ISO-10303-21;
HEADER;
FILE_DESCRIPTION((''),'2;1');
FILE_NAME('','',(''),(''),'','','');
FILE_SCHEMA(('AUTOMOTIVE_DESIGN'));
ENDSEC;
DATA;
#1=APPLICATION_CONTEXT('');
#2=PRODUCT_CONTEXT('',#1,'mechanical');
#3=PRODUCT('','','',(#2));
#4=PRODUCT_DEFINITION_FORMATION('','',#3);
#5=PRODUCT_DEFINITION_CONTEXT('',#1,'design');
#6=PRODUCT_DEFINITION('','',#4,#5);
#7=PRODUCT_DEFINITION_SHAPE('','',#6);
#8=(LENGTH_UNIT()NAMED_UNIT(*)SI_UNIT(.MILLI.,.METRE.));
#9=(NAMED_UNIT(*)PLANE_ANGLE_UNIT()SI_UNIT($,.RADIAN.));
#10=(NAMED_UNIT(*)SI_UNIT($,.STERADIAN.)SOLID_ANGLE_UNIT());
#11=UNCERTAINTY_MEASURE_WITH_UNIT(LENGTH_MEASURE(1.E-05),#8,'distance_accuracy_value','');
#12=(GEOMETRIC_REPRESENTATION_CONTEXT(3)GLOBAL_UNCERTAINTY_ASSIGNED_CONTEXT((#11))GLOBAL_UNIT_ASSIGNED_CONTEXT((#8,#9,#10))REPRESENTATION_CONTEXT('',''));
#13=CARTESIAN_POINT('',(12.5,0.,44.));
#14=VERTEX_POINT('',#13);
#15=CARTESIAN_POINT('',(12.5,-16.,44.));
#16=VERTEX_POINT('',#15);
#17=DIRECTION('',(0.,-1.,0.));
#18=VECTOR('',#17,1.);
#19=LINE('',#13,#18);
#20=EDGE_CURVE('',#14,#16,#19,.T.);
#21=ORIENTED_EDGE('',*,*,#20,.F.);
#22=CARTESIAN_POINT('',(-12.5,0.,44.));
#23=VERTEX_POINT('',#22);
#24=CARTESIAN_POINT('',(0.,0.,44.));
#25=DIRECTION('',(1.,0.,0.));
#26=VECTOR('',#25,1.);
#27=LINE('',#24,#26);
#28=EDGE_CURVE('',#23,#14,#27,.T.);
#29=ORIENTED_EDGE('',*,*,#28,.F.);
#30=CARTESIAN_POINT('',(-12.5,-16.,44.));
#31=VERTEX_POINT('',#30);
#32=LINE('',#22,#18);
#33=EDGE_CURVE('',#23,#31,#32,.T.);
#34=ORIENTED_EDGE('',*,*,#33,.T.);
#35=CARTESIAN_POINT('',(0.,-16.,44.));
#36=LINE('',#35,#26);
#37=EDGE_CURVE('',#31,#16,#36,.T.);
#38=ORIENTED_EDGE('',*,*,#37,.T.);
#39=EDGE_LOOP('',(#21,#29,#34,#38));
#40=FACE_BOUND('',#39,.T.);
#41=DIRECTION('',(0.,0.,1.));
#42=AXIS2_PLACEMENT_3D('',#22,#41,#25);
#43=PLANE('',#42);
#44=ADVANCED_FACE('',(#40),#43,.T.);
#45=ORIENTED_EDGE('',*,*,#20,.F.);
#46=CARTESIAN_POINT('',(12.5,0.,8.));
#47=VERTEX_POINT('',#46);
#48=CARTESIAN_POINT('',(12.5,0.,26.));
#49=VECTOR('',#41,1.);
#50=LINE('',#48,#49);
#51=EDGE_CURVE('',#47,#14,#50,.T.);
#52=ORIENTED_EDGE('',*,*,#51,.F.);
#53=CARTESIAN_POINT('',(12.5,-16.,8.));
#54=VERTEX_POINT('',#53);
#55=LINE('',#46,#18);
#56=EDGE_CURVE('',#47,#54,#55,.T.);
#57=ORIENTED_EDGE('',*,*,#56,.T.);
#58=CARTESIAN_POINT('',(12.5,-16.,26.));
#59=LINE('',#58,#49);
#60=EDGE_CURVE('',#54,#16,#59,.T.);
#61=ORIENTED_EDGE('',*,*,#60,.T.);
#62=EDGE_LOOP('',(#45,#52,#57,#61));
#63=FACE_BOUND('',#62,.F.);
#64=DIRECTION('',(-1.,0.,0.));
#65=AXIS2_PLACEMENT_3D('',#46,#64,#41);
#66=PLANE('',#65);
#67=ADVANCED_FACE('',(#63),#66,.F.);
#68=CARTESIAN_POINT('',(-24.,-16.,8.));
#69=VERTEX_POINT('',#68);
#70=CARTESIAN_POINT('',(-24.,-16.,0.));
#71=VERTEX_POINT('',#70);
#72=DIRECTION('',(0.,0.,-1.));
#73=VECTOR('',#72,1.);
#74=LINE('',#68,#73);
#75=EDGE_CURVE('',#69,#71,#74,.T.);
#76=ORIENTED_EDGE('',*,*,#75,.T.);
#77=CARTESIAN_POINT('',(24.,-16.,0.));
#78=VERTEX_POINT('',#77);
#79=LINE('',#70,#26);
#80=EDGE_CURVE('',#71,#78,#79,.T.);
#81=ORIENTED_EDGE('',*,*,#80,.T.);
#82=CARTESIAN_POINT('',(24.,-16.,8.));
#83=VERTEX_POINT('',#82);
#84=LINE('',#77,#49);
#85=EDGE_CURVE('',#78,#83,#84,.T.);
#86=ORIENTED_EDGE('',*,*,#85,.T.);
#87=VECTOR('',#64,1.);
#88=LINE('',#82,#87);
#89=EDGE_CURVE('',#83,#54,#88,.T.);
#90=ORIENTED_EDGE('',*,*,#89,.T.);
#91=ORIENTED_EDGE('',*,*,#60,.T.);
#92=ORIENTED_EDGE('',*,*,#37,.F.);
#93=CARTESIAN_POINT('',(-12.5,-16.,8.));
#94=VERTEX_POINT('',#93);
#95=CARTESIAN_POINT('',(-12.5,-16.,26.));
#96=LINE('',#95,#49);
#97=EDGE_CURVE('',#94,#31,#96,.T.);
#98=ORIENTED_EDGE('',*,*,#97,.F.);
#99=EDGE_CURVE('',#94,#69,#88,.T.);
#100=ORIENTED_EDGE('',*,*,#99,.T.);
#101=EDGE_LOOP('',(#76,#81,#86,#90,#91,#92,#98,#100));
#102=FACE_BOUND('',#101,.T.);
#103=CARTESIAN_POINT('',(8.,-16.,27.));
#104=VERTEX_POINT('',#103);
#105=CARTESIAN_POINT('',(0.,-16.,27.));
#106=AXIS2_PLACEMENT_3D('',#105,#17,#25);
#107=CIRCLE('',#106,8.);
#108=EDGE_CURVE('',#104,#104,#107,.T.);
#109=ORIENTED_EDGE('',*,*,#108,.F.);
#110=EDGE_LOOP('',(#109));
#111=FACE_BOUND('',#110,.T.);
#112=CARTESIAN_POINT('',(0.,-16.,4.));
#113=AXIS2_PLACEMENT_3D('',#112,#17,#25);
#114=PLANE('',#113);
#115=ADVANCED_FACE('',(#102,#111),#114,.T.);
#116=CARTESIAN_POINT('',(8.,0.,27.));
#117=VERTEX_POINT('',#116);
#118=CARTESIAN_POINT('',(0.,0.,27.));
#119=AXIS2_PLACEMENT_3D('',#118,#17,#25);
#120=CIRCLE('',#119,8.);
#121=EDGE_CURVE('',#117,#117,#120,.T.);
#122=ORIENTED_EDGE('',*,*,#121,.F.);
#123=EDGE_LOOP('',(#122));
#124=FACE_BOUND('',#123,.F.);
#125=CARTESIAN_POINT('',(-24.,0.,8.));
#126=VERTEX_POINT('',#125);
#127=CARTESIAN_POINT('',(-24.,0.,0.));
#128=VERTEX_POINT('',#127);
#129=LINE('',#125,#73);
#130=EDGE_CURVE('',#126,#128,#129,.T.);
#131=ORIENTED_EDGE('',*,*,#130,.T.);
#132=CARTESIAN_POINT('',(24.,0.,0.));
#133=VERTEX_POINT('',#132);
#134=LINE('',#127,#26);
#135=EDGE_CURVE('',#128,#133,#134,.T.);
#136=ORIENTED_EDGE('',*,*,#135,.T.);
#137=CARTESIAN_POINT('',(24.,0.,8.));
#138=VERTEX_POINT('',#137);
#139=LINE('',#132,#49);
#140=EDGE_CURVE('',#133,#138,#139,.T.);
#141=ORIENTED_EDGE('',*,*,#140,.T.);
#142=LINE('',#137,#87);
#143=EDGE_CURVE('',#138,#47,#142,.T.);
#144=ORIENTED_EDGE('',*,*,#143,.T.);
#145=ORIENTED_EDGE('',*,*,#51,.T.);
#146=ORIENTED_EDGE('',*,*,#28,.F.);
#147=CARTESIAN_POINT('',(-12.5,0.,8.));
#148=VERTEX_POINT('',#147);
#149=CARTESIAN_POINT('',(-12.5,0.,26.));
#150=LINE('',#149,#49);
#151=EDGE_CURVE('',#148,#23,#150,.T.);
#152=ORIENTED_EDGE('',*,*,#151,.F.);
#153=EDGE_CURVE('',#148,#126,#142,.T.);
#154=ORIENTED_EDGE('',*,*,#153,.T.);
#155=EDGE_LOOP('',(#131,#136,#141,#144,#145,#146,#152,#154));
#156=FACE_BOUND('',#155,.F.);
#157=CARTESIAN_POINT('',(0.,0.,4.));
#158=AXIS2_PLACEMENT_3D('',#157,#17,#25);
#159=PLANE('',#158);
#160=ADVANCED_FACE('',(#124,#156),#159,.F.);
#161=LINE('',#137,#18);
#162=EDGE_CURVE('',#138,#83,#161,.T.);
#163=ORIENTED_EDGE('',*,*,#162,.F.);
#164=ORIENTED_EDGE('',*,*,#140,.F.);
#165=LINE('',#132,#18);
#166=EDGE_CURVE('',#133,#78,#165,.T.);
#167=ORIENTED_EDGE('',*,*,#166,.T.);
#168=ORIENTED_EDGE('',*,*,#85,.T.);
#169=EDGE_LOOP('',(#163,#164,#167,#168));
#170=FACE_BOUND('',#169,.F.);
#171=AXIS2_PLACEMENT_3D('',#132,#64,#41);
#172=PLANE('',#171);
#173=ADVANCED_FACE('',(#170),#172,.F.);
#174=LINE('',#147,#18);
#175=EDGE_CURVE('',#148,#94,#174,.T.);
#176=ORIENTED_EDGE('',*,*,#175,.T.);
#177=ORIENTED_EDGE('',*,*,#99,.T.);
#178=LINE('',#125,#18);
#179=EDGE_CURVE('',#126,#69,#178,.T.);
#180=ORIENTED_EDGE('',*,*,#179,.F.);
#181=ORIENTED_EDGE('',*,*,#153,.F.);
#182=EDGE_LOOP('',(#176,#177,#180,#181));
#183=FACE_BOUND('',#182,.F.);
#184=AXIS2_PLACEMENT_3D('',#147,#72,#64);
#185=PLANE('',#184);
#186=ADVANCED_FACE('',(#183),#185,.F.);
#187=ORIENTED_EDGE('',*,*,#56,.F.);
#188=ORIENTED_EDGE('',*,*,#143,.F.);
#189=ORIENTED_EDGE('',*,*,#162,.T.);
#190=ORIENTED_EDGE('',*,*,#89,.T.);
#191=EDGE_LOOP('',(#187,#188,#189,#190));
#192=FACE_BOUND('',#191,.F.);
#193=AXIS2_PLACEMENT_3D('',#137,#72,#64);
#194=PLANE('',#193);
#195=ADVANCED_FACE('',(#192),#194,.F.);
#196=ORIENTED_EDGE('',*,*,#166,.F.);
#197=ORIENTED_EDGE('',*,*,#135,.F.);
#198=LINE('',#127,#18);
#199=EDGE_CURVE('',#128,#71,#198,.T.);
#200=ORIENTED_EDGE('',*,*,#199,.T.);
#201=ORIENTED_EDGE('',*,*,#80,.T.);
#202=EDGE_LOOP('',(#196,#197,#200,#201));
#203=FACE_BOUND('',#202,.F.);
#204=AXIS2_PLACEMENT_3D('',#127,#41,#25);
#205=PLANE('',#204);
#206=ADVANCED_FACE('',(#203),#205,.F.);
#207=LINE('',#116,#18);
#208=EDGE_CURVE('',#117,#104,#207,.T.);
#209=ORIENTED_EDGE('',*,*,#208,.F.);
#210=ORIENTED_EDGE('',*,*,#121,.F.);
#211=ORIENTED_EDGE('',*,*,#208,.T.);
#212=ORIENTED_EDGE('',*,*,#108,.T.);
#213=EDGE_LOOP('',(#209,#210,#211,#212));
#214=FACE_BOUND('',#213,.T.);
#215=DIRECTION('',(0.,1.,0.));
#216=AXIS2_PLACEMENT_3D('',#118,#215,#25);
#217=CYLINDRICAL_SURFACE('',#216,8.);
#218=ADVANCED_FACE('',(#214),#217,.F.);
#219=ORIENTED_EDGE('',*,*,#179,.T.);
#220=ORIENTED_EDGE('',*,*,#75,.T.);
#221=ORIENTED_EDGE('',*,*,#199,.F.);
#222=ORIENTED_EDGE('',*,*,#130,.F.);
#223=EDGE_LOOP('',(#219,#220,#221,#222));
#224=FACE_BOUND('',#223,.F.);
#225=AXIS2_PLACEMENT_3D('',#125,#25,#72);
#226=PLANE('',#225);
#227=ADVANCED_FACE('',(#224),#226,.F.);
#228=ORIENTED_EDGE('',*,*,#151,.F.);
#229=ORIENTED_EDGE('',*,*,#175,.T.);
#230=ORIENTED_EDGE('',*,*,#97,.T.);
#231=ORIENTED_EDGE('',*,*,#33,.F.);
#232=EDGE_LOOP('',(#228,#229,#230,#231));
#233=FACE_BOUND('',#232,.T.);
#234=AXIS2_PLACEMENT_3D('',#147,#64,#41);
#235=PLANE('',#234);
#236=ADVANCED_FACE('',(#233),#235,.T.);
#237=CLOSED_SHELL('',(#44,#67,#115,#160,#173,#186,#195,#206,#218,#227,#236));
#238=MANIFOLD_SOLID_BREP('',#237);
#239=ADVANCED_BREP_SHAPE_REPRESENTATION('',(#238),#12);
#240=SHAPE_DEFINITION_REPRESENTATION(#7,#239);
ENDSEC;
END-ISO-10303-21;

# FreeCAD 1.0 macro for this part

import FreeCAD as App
import Part
import Sketcher

V = App.Vector
Q = App.Units.Quantity


def add_polygon(sketch, points):
    """Adds a closed chain of lines whose ends are joined by coincident constraints."""
    first, n = sketch.GeometryCount, len(points)
    for a, b in zip(points, points[1:] + points[:1]):
        sketch.addGeometry(Part.LineSegment(App.Vector(*a, 0), App.Vector(*b, 0)), False)
    for i in range(n):
        sketch.addConstraint(Sketcher.Constraint("Coincident", first + i, 2, first + (i + 1) % n, 1))

doc = App.newDocument("Part")
body = doc.addObject("PartDesign::Body", "Body")

# Sketch on XZ plane
sketch1 = body.newObject("Sketcher::SketchObject", "Sketch")
sketch1.AttachmentSupport = (doc.getObject("XZ_Plane"), [""])
sketch1.MapMode = "FlatFace"
add_polygon(sketch1, [(-24, 8), (-24, 0), (24, 0), (24, 8), (12, 8), (12, 44), (-12, 44), (-12, 8)])  # lines 0-7
sketch1.addGeometry(Part.Circle(V(0, 27, 0), V(0, 0, 1), 8), False)  # 8
sketch1.addConstraint(Sketcher.Constraint("Vertical", 0))
sketch1.addConstraint(Sketcher.Constraint("Horizontal", 1))
sketch1.addConstraint(Sketcher.Constraint("Vertical", 2))
sketch1.addConstraint(Sketcher.Constraint("Horizontal", 3))
sketch1.addConstraint(Sketcher.Constraint("Vertical", 4))
sketch1.addConstraint(Sketcher.Constraint("Horizontal", 5))
sketch1.addConstraint(Sketcher.Constraint("Vertical", 6))
sketch1.addConstraint(Sketcher.Constraint("Horizontal", 7))
sketch1.addConstraint(Sketcher.Constraint("Symmetric", 0, 2, 1, 2, -1, 1))
sketch1.addConstraint(Sketcher.Constraint("Symmetric", 3, 2, 6, 2, -2))
sketch1.addConstraint(Sketcher.Constraint("PointOnObject", 8, 3, -2))
sketch1.addConstraint(Sketcher.Constraint("Diameter", 8, Q("16 mm")))
sketch1.addConstraint(Sketcher.Constraint("DistanceX", 1, 1, 1, 2, Q("48 mm")))
sketch1.addConstraint(Sketcher.Constraint("DistanceX", 5, 2, 5, 1, Q("25 mm")))
sketch1.addConstraint(Sketcher.Constraint("DistanceY", 0, 2, 0, 1, Q("8 mm")))
sketch1.addConstraint(Sketcher.Constraint("DistanceY", 4, 1, 4, 2, Q("36 mm")))
sketch1.addConstraint(Sketcher.Constraint("DistanceY", -1, 1, 8, 3, Q("27 mm")))
pad1 = body.newObject("PartDesign::Pad", "Pad")
pad1.Profile = sketch1
pad1.Length = 16

doc.recompute()
